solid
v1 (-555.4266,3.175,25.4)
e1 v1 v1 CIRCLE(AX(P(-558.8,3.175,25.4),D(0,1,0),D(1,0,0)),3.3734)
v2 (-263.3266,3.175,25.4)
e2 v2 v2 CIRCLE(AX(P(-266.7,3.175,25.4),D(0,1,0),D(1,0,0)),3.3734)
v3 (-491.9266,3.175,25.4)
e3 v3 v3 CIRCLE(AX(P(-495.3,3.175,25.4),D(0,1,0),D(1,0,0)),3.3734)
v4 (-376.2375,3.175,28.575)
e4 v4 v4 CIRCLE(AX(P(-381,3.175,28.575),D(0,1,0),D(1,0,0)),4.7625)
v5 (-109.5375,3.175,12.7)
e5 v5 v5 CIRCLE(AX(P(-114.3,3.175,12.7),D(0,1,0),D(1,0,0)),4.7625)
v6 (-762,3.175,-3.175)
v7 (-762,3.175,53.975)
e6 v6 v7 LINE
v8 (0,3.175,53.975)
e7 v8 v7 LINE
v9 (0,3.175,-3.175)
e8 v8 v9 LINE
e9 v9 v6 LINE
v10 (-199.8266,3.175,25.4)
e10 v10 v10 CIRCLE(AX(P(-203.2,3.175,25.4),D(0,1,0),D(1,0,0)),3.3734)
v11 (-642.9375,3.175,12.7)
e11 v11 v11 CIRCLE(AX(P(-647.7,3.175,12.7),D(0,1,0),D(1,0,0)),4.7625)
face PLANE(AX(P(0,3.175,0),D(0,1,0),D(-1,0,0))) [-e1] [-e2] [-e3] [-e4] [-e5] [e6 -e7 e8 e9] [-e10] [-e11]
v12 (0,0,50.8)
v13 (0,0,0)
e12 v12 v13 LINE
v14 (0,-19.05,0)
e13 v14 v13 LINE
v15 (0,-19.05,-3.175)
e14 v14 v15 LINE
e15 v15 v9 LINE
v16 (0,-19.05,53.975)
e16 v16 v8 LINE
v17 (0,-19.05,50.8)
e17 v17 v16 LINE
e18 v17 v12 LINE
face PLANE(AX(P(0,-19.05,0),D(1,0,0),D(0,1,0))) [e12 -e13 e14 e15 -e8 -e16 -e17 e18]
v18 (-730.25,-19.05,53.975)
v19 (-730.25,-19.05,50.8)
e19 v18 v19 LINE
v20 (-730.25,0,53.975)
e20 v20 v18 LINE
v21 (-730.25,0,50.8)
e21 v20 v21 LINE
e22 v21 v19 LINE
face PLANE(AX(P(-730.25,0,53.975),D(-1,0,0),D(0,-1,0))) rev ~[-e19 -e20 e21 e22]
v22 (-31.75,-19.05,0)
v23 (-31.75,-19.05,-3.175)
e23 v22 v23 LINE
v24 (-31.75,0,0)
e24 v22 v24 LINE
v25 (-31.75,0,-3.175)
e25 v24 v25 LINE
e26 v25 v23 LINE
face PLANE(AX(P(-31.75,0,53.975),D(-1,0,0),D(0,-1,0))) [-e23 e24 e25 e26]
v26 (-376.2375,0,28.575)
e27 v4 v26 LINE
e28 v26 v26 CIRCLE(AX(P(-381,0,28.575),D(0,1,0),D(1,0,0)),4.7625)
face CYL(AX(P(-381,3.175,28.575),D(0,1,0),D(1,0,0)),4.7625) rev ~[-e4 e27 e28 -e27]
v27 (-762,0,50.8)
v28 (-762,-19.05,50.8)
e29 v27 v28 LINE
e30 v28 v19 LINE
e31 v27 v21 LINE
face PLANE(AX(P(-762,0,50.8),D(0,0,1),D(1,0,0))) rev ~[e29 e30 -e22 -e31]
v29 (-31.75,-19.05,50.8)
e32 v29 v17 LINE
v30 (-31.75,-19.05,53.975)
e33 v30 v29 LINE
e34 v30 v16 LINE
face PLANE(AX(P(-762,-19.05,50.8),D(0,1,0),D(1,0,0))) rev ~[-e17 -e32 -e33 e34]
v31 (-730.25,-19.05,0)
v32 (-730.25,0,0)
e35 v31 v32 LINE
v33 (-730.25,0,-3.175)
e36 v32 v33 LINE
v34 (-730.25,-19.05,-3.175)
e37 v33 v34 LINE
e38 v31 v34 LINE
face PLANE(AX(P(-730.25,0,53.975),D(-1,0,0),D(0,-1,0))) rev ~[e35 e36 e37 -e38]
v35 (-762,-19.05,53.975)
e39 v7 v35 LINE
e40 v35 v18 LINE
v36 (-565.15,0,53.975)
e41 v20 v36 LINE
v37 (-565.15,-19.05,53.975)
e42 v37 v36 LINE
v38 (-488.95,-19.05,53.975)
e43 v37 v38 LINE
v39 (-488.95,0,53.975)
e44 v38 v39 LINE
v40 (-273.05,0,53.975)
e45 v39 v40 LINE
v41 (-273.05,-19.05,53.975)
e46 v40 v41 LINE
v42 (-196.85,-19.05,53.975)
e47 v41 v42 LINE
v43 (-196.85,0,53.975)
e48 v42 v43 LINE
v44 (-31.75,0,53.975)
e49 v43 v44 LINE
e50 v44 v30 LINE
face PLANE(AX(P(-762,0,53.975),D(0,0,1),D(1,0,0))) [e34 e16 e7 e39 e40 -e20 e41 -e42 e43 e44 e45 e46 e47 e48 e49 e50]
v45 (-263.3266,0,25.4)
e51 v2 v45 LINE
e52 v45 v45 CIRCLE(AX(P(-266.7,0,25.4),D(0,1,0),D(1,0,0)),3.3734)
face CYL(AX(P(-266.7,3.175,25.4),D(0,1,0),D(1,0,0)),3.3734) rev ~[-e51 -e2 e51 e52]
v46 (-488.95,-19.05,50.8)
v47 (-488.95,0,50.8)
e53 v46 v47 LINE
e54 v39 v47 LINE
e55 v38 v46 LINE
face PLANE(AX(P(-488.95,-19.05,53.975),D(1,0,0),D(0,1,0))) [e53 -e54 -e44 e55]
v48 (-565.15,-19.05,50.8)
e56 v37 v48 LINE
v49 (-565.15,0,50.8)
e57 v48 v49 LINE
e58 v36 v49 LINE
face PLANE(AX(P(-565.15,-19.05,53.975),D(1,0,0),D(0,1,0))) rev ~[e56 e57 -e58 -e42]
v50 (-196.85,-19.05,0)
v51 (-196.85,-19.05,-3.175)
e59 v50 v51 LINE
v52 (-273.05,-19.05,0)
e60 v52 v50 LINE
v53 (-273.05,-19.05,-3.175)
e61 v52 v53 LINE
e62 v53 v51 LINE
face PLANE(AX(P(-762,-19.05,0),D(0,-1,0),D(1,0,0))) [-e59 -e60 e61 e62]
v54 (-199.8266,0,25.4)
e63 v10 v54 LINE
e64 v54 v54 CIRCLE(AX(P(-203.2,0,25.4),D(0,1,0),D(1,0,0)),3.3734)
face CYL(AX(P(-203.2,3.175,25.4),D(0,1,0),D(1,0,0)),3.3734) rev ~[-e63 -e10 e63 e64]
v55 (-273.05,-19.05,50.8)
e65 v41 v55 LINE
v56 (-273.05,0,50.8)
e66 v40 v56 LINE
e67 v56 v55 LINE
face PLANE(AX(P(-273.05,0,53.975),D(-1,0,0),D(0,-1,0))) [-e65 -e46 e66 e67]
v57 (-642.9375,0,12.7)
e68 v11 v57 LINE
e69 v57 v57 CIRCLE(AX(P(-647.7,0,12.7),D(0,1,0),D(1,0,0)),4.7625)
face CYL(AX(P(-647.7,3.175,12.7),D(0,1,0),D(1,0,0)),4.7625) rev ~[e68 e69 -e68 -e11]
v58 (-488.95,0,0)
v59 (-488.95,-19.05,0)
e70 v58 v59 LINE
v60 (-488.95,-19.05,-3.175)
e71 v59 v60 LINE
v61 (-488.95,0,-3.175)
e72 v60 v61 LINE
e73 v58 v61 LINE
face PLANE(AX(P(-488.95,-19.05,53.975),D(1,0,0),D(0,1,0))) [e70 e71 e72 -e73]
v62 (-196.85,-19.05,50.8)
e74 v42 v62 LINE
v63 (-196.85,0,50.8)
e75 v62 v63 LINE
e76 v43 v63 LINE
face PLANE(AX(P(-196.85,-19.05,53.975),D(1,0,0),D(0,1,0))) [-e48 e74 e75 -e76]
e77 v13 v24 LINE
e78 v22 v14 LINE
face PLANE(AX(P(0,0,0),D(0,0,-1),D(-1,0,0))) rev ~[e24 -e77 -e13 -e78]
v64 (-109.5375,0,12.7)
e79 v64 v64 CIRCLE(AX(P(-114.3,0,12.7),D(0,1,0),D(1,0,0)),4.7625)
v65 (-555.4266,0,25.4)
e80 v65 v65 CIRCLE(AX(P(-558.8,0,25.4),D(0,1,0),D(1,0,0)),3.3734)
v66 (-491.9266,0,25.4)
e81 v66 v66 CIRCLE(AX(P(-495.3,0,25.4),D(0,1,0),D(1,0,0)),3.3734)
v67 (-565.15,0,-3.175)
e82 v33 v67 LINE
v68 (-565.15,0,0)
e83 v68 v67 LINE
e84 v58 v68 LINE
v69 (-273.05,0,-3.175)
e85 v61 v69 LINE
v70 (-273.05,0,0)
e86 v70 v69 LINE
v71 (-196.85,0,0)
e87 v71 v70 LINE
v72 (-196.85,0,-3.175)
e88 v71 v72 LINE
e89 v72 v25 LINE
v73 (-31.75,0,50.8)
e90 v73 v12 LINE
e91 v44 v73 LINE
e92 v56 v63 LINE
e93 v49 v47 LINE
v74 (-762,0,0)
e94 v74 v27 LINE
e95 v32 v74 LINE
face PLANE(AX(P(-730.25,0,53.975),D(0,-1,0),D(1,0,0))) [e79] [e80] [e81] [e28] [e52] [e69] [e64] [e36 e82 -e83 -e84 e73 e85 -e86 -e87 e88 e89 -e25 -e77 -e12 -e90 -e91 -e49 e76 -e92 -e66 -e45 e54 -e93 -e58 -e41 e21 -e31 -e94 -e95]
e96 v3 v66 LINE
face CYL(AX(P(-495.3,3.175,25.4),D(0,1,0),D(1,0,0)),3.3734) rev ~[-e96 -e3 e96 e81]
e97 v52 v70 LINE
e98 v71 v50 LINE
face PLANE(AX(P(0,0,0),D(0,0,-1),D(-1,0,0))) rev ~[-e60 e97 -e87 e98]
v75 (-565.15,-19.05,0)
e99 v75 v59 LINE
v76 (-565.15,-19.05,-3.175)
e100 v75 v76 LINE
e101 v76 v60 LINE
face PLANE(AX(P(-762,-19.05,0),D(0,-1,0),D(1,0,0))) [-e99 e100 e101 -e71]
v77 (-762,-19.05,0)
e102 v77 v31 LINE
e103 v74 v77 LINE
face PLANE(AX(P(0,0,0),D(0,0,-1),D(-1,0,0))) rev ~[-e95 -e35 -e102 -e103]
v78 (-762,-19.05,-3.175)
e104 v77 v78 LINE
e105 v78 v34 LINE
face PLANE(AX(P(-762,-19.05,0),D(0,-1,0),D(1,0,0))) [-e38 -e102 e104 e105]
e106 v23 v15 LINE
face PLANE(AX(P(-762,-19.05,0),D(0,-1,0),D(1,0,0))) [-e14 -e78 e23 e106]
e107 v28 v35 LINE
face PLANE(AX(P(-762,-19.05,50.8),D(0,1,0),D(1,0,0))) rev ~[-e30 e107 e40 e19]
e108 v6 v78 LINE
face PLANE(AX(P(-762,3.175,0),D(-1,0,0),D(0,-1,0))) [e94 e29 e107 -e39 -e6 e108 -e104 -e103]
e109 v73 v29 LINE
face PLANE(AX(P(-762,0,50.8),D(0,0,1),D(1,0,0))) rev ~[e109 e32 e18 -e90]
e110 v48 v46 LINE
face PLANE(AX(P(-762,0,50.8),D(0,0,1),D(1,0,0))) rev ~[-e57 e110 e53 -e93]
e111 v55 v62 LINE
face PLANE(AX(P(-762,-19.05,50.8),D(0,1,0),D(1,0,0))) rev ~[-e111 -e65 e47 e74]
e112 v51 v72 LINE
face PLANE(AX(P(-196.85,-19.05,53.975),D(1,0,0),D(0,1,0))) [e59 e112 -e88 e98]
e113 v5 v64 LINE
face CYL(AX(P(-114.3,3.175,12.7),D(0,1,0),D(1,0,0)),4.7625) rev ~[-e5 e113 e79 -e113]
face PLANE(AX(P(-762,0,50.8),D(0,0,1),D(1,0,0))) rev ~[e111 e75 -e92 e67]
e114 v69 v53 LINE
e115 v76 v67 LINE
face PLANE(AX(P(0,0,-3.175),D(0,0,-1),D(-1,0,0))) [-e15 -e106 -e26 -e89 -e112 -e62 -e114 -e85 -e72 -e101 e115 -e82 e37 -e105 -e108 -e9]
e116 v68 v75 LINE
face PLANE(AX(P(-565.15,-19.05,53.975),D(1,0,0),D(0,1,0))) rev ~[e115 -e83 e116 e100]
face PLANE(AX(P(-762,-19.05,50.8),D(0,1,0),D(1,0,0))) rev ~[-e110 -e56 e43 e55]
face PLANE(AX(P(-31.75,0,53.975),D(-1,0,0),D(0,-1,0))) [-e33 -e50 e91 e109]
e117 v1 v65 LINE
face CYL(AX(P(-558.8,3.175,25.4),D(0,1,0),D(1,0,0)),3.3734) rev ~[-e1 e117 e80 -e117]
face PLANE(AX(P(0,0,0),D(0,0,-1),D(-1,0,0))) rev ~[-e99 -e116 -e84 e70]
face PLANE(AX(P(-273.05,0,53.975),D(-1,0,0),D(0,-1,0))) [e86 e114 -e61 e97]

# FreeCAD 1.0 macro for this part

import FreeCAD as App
import Part
import Sketcher

V = App.Vector
Q = App.Units.Quantity

doc = App.newDocument("Part")
body = doc.addObject("PartDesign::Body", "Body")

sketch1 = doc.addObject("Sketcher::SketchObject", "Sketch")
body.addObject(sketch1)
sketch1.AttachmentSupport = (doc.XZ_Plane, [""])
sketch1.MapMode = "FlatFace"
sketch1.addGeometry([
    Part.LineSegment(V(0, 51, 0), V(0, 0, 0)),
    Part.LineSegment(V(0, 0, 0), V(-762, 0, 0)),
    Part.LineSegment(V(-762, 0, 0), V(-762, 51, 0)),
    Part.LineSegment(V(-762, 51, 0), V(0, 51, 0)),
], False)
sketch1.addConstraint([
    Sketcher.Constraint("Coincident", 0, 2, 1, 1),
    Sketcher.Constraint("Coincident", 1, 2, 2, 1),
    Sketcher.Constraint("Coincident", 2, 2, 3, 1),
    Sketcher.Constraint("Coincident", 3, 2, 0, 1),
    Sketcher.Constraint("Vertical", 0),
    Sketcher.Constraint("Horizontal", 1),
    Sketcher.Constraint("Vertical", 2),
    Sketcher.Constraint("Horizontal", 3),
    Sketcher.Constraint("Coincident", 0, 2, -1, 1),
    Sketcher.Constraint("DistanceX", 1, 2, 1, 1, Q("30 in")),
    Sketcher.Constraint("DistanceY", 0, 2, 0, 1, Q("2 in")),
])
pad1 = doc.addObject("PartDesign::Pad", "Pad")
body.addObject(pad1)
pad1.Profile = sketch1
pad1.Length = Q("0.125 in")
pad1.Reversed = True

sketch2 = doc.addObject("Sketcher::SketchObject", "Sketch001")
body.addObject(sketch2)
sketch2.AttachmentSupport = (doc.XZ_Plane, [""])
sketch2.MapMode = "FlatFace"
sketch2.AttachmentOffset = App.Placement(V(0, 0, -0.125 * 25.4), App.Rotation())
sketch2.addGeometry([
    Part.Circle(V(-381, 28.6, 0), V(0, 0, 1), 4.8),
    Part.Circle(V(-114.3, 12.7, 0), V(0, 0, 1), 4.8),
    Part.Circle(V(-647.7, 12.7, 0), V(0, 0, 1), 4.8),
    Part.Circle(V(-558.8, 25.4, 0), V(0, 0, 1), 3.4),
    Part.Circle(V(-495.3, 25.4, 0), V(0, 0, 1), 3.4),
    Part.Circle(V(-203.2, 25.4, 0), V(0, 0, 1), 3.4),
    Part.Circle(V(-266.7, 25.4, 0), V(0, 0, 1), 3.4),
], False)
sketch2.addConstraint([
    Sketcher.Constraint("Equal", 0, 1),
    Sketcher.Constraint("Equal", 1, 2),
    Sketcher.Constraint("Equal", 3, 4),
    Sketcher.Constraint("Equal", 4, 5),
    Sketcher.Constraint("Equal", 5, 6),
    Sketcher.Constraint("Horizontal", 1, 3, 2, 3),
    Sketcher.Constraint("Horizontal", 3, 3, 4, 3),
    Sketcher.Constraint("Horizontal", 4, 3, 5, 3),
    Sketcher.Constraint("Horizontal", 5, 3, 6, 3),
    Sketcher.Constraint("Diameter", 0, Q("0.375 in")),
    Sketcher.Constraint("Diameter", 3, Q("0.265622 in")),
    Sketcher.Constraint("DistanceX", 0, 3, -1, 1, Q("15 in")),
    Sketcher.Constraint("DistanceY", -1, 1, 3, 3, Q("1 in")),
    Sketcher.Constraint("DistanceX", 5, 3, -1, 1, Q("8 in")),
    Sketcher.Constraint("DistanceX", 4, 3, 1, 3, Q("15 in")),
    Sketcher.Constraint("DistanceX", 6, 3, -1, 1, Q("10.5 in")),
    Sketcher.Constraint("DistanceX", 0, 3, 1, 3, Q("10.5 in")),
    Sketcher.Constraint("DistanceX", 2, 3, 0, 3, Q("10.5 in")),
    Sketcher.Constraint("DistanceY", -1, 1, 0, 3, Q("1.125 in")),
    Sketcher.Constraint("DistanceX", 3, 3, -1, 1, Q("22 in")),
    Sketcher.Constraint("DistanceY", -1, 1, 1, 3, Q("0.5 in")),
])
pocket1 = doc.addObject("PartDesign::Pocket", "Pocket")
body.addObject(pocket1)
pocket1.Profile = sketch2
pocket1.Length = Q("0.125 in")
pocket1.Reversed = True

sketch3 = doc.addObject("Sketcher::SketchObject", "Sketch002")
body.addObject(sketch3)
sketch3.AttachmentSupport = (doc.XY_Plane, [""])
sketch3.MapMode = "FlatFace"
sketch3.AttachmentOffset = App.Placement(V(0, 0, 2 * 25.4), App.Rotation())
sketch3.addGeometry([
    Part.LineSegment(V(0, -19, 0), V(0, 3, 0)),
    Part.LineSegment(V(0, 3, 0), V(-762, 3, 0)),
    Part.LineSegment(V(-762, 3, 0), V(-762, -19, 0)),
    Part.LineSegment(V(-762, -19, 0), V(0, -19, 0)),
], False)
sketch3.addConstraint([
    Sketcher.Constraint("Coincident", 0, 2, 1, 1),
    Sketcher.Constraint("Coincident", 1, 2, 2, 1),
    Sketcher.Constraint("Coincident", 2, 2, 3, 1),
    Sketcher.Constraint("Coincident", 3, 2, 0, 1),
    Sketcher.Constraint("Vertical", 0),
    Sketcher.Constraint("Horizontal", 1),
    Sketcher.Constraint("Vertical", 2),
    Sketcher.Constraint("Horizontal", 3),
    Sketcher.Constraint("PointOnObject", 0, 2, -2),
    Sketcher.Constraint("DistanceX", 1, 2, 1, 1, Q("30 in")),
    Sketcher.Constraint("DistanceY", 0, 1, 0, 2, Q("0.875 in")),
    Sketcher.Constraint("DistanceY", 2, 2, -1, 1, Q("0.75 in")),
])
pad2 = doc.addObject("PartDesign::Pad", "Pad001")
body.addObject(pad2)
pad2.Profile = sketch3
pad2.Length = Q("0.125 in")

sketch4 = doc.addObject("Sketcher::SketchObject", "Sketch003")
body.addObject(sketch4)
sketch4.AttachmentSupport = (doc.XY_Plane, [""])
sketch4.MapMode = "FlatFace"
sketch4.addGeometry([
    Part.LineSegment(V(-762, 3, 0), V(0, 3, 0)),
    Part.LineSegment(V(0, 3, 0), V(0, -19, 0)),
    Part.LineSegment(V(0, -19, 0), V(-762, -19, 0)),
    Part.LineSegment(V(-762, -19, 0), V(-762, 3, 0)),
], False)
sketch4.addConstraint([
    Sketcher.Constraint("Coincident", 0, 2, 1, 1),
    Sketcher.Constraint("Coincident", 1, 2, 2, 1),
    Sketcher.Constraint("Coincident", 2, 2, 3, 1),
    Sketcher.Constraint("Coincident", 3, 2, 0, 1),
    Sketcher.Constraint("Horizontal", 0),
    Sketcher.Constraint("Vertical", 1),
    Sketcher.Constraint("Horizontal", 2),
    Sketcher.Constraint("Vertical", 3),
    Sketcher.Constraint("PointOnObject", 0, 2, -2),
    Sketcher.Constraint("DistanceX", 0, 1, 0, 2, Q("30 in")),
    Sketcher.Constraint("DistanceY", 1, 2, 1, 1, Q("0.875 in")),
    Sketcher.Constraint("DistanceY", 1, 2, -1, 1, Q("0.75 in")),
])
pad3 = doc.addObject("PartDesign::Pad", "Pad002")
body.addObject(pad3)
pad3.Profile = sketch4
pad3.Length = Q("0.125 in")
pad3.Reversed = True

sketch5 = doc.addObject("Sketcher::SketchObject", "Sketch004")
body.addObject(sketch5)
sketch5.AttachmentSupport = (doc.XY_Plane, [""])
sketch5.MapMode = "FlatFace"
sketch5.AttachmentOffset = App.Placement(V(0, 0, 2.125 * 25.4), App.Rotation())
sketch5.addGeometry([
    Part.LineSegment(V(-197, -19, 0), V(-32, -19, 0)),
    Part.LineSegment(V(-32, -19, 0), V(-32, 0, 0)),
    Part.LineSegment(V(-32, 0, 0), V(-197, 0, 0)),
    Part.LineSegment(V(-197, 0, 0), V(-197, -19, 0)),
    Part.LineSegment(V(-489, -19, 0), V(-273, -19, 0)),
    Part.LineSegment(V(-273, -19, 0), V(-273, 0, 0)),
    Part.LineSegment(V(-273, 0, 0), V(-489, 0, 0)),
    Part.LineSegment(V(-489, 0, 0), V(-489, -19, 0)),
    Part.LineSegment(V(-730, -19, 0), V(-565, -19, 0)),
    Part.LineSegment(V(-565, -19, 0), V(-565, 0, 0)),
    Part.LineSegment(V(-565, 0, 0), V(-730, 0, 0)),
    Part.LineSegment(V(-730, 0, 0), V(-730, -19, 0)),
], False)
sketch5.addConstraint([
    Sketcher.Constraint("Coincident", 0, 2, 1, 1),
    Sketcher.Constraint("Coincident", 1, 2, 2, 1),
    Sketcher.Constraint("Coincident", 2, 2, 3, 1),
    Sketcher.Constraint("Coincident", 3, 2, 0, 1),
    Sketcher.Constraint("Coincident", 4, 2, 5, 1),
    Sketcher.Constraint("Coincident", 5, 2, 6, 1),
    Sketcher.Constraint("Coincident", 6, 2, 7, 1),
    Sketcher.Constraint("Coincident", 7, 2, 4, 1),
    Sketcher.Constraint("Coincident", 8, 2, 9, 1),
    Sketcher.Constraint("Coincident", 9, 2, 10, 1),
    Sketcher.Constraint("Coincident", 10, 2, 11, 1),
    Sketcher.Constraint("Coincident", 11, 2, 8, 1),
    Sketcher.Constraint("Horizontal", 0),
    Sketcher.Constraint("Vertical", 1),
    Sketcher.Constraint("Horizontal", 2),
    Sketcher.Constraint("Vertical", 3),
    Sketcher.Constraint("Horizontal", 4),
    Sketcher.Constraint("Vertical", 5),
    Sketcher.Constraint("Horizontal", 6),
    Sketcher.Constraint("Vertical", 7),
    Sketcher.Constraint("Horizontal", 8),
    Sketcher.Constraint("Vertical", 9),
    Sketcher.Constraint("Horizontal", 10),
    Sketcher.Constraint("Vertical", 11),
    Sketcher.Constraint("PointOnObject", 1, 2, -1),
    Sketcher.Constraint("PointOnObject", 5, 2, -1),
    Sketcher.Constraint("PointOnObject", 9, 2, -1),
    Sketcher.Constraint("Horizontal", 3, 2, 4, 2),
    Sketcher.Constraint("Horizontal", 7, 2, 8, 2),
    Sketcher.Constraint("Equal", 2, 8),
    Sketcher.Constraint("DistanceX", 0, 1, 0, 2, Q("6.5 in")),
    Sketcher.Constraint("DistanceX", 4, 1, 4, 2, Q("8.5 in")),
    Sketcher.Constraint("DistanceX", 4, 2, 3, 2, Q("3 in")),
    Sketcher.Constraint("DistanceX", 8, 2, 7, 2, Q("3 in")),
    Sketcher.Constraint("DistanceX", 0, 2, -1, 1, Q("1.25 in")),
    Sketcher.Constraint("DistanceY", 1, 1, 1, 2, Q("0.75 in")),
])
pocket2 = doc.addObject("PartDesign::Pocket", "Pocket001")
body.addObject(pocket2)
pocket2.Profile = sketch5
pocket2.Length = Q("2.25 in")

doc.recompute()
